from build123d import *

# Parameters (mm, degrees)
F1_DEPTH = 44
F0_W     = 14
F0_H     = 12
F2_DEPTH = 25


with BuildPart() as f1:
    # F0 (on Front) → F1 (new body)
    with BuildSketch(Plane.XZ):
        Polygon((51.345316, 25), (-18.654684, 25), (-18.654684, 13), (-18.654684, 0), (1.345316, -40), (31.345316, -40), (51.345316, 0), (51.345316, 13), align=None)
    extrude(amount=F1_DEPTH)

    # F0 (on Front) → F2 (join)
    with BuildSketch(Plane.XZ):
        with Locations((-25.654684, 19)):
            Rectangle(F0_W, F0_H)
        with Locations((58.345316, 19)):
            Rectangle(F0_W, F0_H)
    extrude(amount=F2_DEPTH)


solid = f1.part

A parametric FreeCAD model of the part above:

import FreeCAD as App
import Part
import Sketcher

doc = App.newDocument("Part")
params = doc.addObject("Spreadsheet::Sheet", "Params")
for row, (alias, value) in enumerate([
    ("sketch1_width", "70 mm"),
    ("sketch1_width2", "30 mm"),
    ("sketch1_height", "25 mm"),
    ("pad1_length", "44 mm"),
    ("sketch2_width", "14 mm"),
    ("sketch2_height", "12 mm"),
    ("pad2_length", "25 mm"),
], start=1):
    params.set(f"A{row}", alias)
    params.set(f"B{row}", "=" + value)
    params.setAlias(f"B{row}", alias)

body = doc.addObject("PartDesign::Body", "Body")

# Sketch on XZ plane
sketch1 = doc.addObject("Sketcher::SketchObject", "Sketch")
body.addObject(sketch1)
sketch1.AttachmentSupport = (doc.XZ_Plane, [""])
sketch1.MapMode = "FlatFace"
sketch1.addGeometry(Part.LineSegment(App.Vector(51, 25, 0), App.Vector(-19, 25, 0)), False)
sketch1.addGeometry(Part.LineSegment(App.Vector(-19, 25, 0), App.Vector(-19, 0, 0)), False)
sketch1.addGeometry(Part.LineSegment(App.Vector(-19, 0, 0), App.Vector(1, -40, 0)), False)
sketch1.addGeometry(Part.LineSegment(App.Vector(1, -40, 0), App.Vector(31, -40, 0)), False)
sketch1.addGeometry(Part.LineSegment(App.Vector(31, -40, 0), App.Vector(51, 0, 0)), False)
sketch1.addGeometry(Part.LineSegment(App.Vector(51, 0, 0), App.Vector(51, 25, 0)), False)
sketch1.addConstraint(Sketcher.Constraint("Coincident", 0, 2, 1, 1))
sketch1.addConstraint(Sketcher.Constraint("Coincident", 1, 2, 2, 1))
sketch1.addConstraint(Sketcher.Constraint("Coincident", 2, 2, 3, 1))
sketch1.addConstraint(Sketcher.Constraint("Coincident", 3, 2, 4, 1))
sketch1.addConstraint(Sketcher.Constraint("Coincident", 4, 2, 5, 1))
sketch1.addConstraint(Sketcher.Constraint("Coincident", 5, 2, 0, 1))
sketch1.addConstraint(Sketcher.Constraint("Horizontal", 0))
sketch1.addConstraint(Sketcher.Constraint("Vertical", 1))
sketch1.addConstraint(Sketcher.Constraint("Horizontal", 3))
sketch1.addConstraint(Sketcher.Constraint("Vertical", 5))
sketch1.addConstraint(Sketcher.Constraint("PointOnObject", 1, 2, -1))
sketch1.addConstraint(Sketcher.Constraint("PointOnObject", 4, 2, -1))
sketch1.addConstraint(Sketcher.Constraint("Equal", 2, 4))
sketch1.addConstraint(Sketcher.Constraint("DistanceX", 0, 2, 0, 1, 70.0))
sketch1.addConstraint(Sketcher.Constraint("DistanceX", 3, 1, 3, 2, 30.0))
sketch1.addConstraint(Sketcher.Constraint("DistanceY", 1, 2, 1, 1, 25.0))
sketch1.addConstraint(Sketcher.Constraint("DistanceY", 2, 2, -1, 1, 40.0))
sketch1.addConstraint(Sketcher.Constraint("DistanceX", 0, 2, -1, 1, 18.654684))
sketch1.setExpression("Constraints[13]", "Params.sketch1_width")
sketch1.setExpression("Constraints[14]", "Params.sketch1_width2")
sketch1.setExpression("Constraints[15]", "Params.sketch1_height")
pad1 = doc.addObject("PartDesign::Pad", "Pad")
body.addObject(pad1)
pad1.Profile = sketch1
pad1.setExpression("Length", "Params.pad1_length")

# Sketch on XZ plane
sketch2 = doc.addObject("Sketcher::SketchObject", "Sketch001")
body.addObject(sketch2)
sketch2.AttachmentSupport = (doc.XZ_Plane, [""])
sketch2.MapMode = "FlatFace"
sketch2.addGeometry(Part.LineSegment(App.Vector(-33, 25, 0), App.Vector(-33, 13, 0)), False)
sketch2.addGeometry(Part.LineSegment(App.Vector(-33, 13, 0), App.Vector(-19, 13, 0)), False)
sketch2.addGeometry(Part.LineSegment(App.Vector(-19, 13, 0), App.Vector(-19, 25, 0)), False)
sketch2.addGeometry(Part.LineSegment(App.Vector(-19, 25, 0), App.Vector(-33, 25, 0)), False)
sketch2.addGeometry(Part.LineSegment(App.Vector(51, 25, 0), App.Vector(51, 13, 0)), False)
sketch2.addGeometry(Part.LineSegment(App.Vector(51, 13, 0), App.Vector(65, 13, 0)), False)
sketch2.addGeometry(Part.LineSegment(App.Vector(65, 13, 0), App.Vector(65, 25, 0)), False)
sketch2.addGeometry(Part.LineSegment(App.Vector(65, 25, 0), App.Vector(51, 25, 0)), False)
sketch2.addConstraint(Sketcher.Constraint("Coincident", 0, 2, 1, 1))
sketch2.addConstraint(Sketcher.Constraint("Coincident", 1, 2, 2, 1))
sketch2.addConstraint(Sketcher.Constraint("Coincident", 2, 2, 3, 1))
sketch2.addConstraint(Sketcher.Constraint("Coincident", 3, 2, 0, 1))
sketch2.addConstraint(Sketcher.Constraint("Coincident", 4, 2, 5, 1))
sketch2.addConstraint(Sketcher.Constraint("Coincident", 5, 2, 6, 1))
sketch2.addConstraint(Sketcher.Constraint("Coincident", 6, 2, 7, 1))
sketch2.addConstraint(Sketcher.Constraint("Coincident", 7, 2, 4, 1))
sketch2.addConstraint(Sketcher.Constraint("Vertical", 0))
sketch2.addConstraint(Sketcher.Constraint("Horizontal", 1))
sketch2.addConstraint(Sketcher.Constraint("Vertical", 2))
sketch2.addConstraint(Sketcher.Constraint("Horizontal", 3))
sketch2.addConstraint(Sketcher.Constraint("Vertical", 4))
sketch2.addConstraint(Sketcher.Constraint("Horizontal", 5))
sketch2.addConstraint(Sketcher.Constraint("Vertical", 6))
sketch2.addConstraint(Sketcher.Constraint("Horizontal", 7))
sketch2.addConstraint(Sketcher.Constraint("Horizontal", 1, 2, 4, 2))
sketch2.addConstraint(Sketcher.Constraint("Horizontal", 3, 2, 6, 2))
sketch2.addConstraint(Sketcher.Constraint("Equal", 3, 5))
sketch2.addConstraint(Sketcher.Constraint("DistanceX", 1, 1, 1, 2, 14.0))
sketch2.addConstraint(Sketcher.Constraint("DistanceY", 0, 2, 0, 1, 12.0))
sketch2.addConstraint(Sketcher.Constraint("DistanceY", -1, 1, 0, 2, 13.0))
sketch2.addConstraint(Sketcher.Constraint("DistanceX", 1, 2, 4, 2, 70.0))
sketch2.addConstraint(Sketcher.Constraint("DistanceX", 0, 2, -1, 1, 32.654684))
sketch2.setExpression("Constraints[19]", "Params.sketch2_width")
sketch2.setExpression("Constraints[20]", "Params.sketch2_height")
pad2 = doc.addObject("PartDesign::Pad", "Pad001")
body.addObject(pad2)
pad2.Profile = sketch2
pad2.setExpression("Length", "Params.pad2_length")

doc.recompute()
